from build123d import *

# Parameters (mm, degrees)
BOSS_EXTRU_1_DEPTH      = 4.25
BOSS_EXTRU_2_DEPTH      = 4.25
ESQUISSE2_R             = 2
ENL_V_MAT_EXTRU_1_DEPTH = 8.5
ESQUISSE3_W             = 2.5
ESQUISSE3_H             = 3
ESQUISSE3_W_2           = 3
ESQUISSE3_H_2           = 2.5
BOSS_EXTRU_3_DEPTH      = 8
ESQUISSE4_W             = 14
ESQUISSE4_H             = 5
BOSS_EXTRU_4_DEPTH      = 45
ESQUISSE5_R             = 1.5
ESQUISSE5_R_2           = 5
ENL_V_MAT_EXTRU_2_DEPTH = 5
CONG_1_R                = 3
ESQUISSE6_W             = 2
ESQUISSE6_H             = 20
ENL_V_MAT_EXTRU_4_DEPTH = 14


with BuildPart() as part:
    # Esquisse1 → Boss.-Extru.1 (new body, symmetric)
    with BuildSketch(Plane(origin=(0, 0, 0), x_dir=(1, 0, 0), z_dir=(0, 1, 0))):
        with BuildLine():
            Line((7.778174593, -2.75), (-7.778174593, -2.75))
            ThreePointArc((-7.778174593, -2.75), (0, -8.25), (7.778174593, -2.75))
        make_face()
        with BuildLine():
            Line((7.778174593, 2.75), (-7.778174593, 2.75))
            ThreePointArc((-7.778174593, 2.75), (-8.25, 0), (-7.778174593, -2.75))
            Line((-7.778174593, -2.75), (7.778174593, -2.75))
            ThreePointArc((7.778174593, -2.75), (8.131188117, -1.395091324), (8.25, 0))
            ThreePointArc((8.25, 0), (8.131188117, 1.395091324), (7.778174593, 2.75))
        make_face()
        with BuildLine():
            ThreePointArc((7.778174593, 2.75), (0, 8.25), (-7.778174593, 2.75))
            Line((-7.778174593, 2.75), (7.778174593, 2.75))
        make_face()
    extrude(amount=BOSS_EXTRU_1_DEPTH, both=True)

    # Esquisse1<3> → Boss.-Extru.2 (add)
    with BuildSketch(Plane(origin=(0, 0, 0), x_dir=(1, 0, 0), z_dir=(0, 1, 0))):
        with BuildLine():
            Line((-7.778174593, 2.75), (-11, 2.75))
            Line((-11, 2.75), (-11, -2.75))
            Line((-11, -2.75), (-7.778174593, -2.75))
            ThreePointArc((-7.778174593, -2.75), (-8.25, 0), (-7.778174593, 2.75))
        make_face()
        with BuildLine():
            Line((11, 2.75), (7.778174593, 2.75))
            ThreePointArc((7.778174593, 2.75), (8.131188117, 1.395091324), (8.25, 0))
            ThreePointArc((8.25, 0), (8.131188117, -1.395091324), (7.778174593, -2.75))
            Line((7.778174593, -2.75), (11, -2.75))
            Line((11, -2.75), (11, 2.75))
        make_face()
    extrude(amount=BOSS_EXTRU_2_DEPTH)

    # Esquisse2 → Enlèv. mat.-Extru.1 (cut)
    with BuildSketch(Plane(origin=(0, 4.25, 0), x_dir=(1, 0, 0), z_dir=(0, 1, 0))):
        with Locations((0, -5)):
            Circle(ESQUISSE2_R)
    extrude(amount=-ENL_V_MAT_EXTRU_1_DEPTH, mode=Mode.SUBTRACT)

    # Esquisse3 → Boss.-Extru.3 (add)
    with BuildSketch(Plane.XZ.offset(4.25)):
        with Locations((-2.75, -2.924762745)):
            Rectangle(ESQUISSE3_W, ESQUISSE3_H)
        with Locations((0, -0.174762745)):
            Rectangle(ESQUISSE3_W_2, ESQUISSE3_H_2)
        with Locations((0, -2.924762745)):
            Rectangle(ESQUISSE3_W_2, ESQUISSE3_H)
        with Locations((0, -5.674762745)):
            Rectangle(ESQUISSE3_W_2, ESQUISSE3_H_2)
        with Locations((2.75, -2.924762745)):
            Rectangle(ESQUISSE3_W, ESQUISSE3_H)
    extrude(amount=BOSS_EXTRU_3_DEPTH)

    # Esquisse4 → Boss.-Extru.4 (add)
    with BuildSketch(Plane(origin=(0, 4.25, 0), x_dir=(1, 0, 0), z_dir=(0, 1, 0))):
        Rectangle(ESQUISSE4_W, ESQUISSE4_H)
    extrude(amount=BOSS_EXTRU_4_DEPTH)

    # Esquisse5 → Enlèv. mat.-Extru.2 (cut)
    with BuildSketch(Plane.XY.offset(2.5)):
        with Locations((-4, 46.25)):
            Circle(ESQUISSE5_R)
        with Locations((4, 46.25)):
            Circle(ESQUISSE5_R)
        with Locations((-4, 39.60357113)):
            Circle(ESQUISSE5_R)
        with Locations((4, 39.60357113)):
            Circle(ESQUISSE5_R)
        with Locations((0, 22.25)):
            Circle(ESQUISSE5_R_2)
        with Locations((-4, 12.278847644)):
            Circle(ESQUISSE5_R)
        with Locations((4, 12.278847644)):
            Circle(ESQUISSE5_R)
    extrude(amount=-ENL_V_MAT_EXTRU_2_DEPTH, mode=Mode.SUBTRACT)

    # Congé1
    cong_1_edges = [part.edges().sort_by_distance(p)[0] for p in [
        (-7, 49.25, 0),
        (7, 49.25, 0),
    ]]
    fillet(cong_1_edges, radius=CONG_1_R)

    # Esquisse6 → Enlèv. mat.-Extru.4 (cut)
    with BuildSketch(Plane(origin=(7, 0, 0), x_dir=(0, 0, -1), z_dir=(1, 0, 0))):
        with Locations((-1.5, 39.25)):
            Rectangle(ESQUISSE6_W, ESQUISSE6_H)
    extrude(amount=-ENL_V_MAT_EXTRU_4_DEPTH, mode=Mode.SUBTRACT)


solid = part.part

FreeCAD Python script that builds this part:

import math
import FreeCAD as App
import Part
import Sketcher

V = App.Vector
Q = App.Units.Quantity


def edges_at(feature, points):
    """Names of the edges that pass closest to the given points."""
    edges = feature.Shape.Edges
    near = lambda p: min(range(len(edges)), key=lambda i: edges[i].distToShape(Part.Vertex(*p))[0])
    return sorted({f"Edge{near(p) + 1}" for p in points})


def add_polygon(sketch, points):
    """Adds a closed chain of lines whose ends are joined by coincident constraints."""
    first, n = sketch.GeometryCount, len(points)
    for a, b in zip(points, points[1:] + points[:1]):
        sketch.addGeometry(Part.LineSegment(App.Vector(*a, 0), App.Vector(*b, 0)), False)
    for i in range(n):
        sketch.addConstraint(Sketcher.Constraint("Coincident", first + i, 2, first + (i + 1) % n, 1))

doc = App.newDocument("Part")
body = doc.addObject("PartDesign::Body", "Body")

# Sketch on XZ plane
sketch1 = doc.addObject("Sketcher::SketchObject", "Sketch")
body.addObject(sketch1)
sketch1.AttachmentSupport = (doc.XZ_Plane, [""])
sketch1.MapMode = "FlatFace"
sketch1.addGeometry([
    Part.ArcOfCircle(Part.Circle(V(0, 0, 0), V(0, 0, 1), 8.2), math.radians(19), math.radians(161)),  # 0
    Part.ArcOfCircle(Part.Circle(V(0, 0, 0), V(0, 0, 1), 8.3), math.radians(0), math.radians(19.47)),  # 1
    Part.ArcOfCircle(Part.Circle(V(0, 0, 0), V(0, 0, 1), 8.3), math.radians(-19.47), math.radians(0)),  # 2
    Part.ArcOfCircle(Part.Circle(V(0, 0, 0), V(0, 0, 1), 8.2), math.radians(-161), math.radians(-19)),  # 3
    Part.ArcOfCircle(Part.Circle(V(0, 0, 0), V(0, 0, 1), 8.2), math.radians(161), math.radians(199)),  # 4
], False)
sketch1.addConstraint([
    Sketcher.Constraint("Tangent", 0, 1, 1, 2),
    Sketcher.Constraint("Tangent", 1, 1, 2, 2),
    Sketcher.Constraint("Tangent", 2, 1, 3, 2),
    Sketcher.Constraint("Tangent", 3, 1, 4, 2),
    Sketcher.Constraint("Tangent", 4, 1, 0, 2),
    Sketcher.Constraint("Coincident", 0, 3, -1, 1),
    Sketcher.Constraint("Coincident", 2, 3, -1, 1),
    Sketcher.Constraint("PointOnObject", 1, 1, -1),
    Sketcher.Constraint("Horizontal", 2, 1, 3, 1),
    Sketcher.Constraint("Horizontal", 0, 1, 4, 1),
    Sketcher.Constraint("Vertical", 0, 1, 2, 1),
    Sketcher.Constraint("Radius", 0, Q("8.25 mm")),
    Sketcher.Constraint("DistanceY", 2, 1, 0, 1, Q("5.5 mm")),
])
pad1 = doc.addObject("PartDesign::Pad", "Pad")
body.addObject(pad1)
pad1.Profile = sketch1
pad1.Length = 8.5
pad1.Midplane = True

# Sketch on XZ plane
sketch2 = doc.addObject("Sketcher::SketchObject", "Sketch001")
body.addObject(sketch2)
sketch2.AttachmentSupport = (doc.XZ_Plane, [""])
sketch2.MapMode = "FlatFace"
sketch2.addGeometry([
    Part.LineSegment(V(-7.8, -2.8, 0), V(-11, -2.8, 0)),  # 0
    Part.LineSegment(V(-11, -2.8, 0), V(-11, 2.8, 0)),  # 1
    Part.LineSegment(V(-11, 2.8, 0), V(-7.8, 2.8, 0)),  # 2
    Part.ArcOfCircle(Part.Circle(V(0, 0, 0), V(0, 0, 1), 8.2), math.radians(161), math.radians(199)),  # 3
    Part.LineSegment(V(11, -2.8, 0), V(7.8, -2.8, 0)),  # 4
    Part.ArcOfCircle(Part.Circle(V(0, 0, 0), V(0, 0, 1), 8.3), math.radians(-19.47), math.radians(0)),  # 5
    Part.ArcOfCircle(Part.Circle(V(0, 0, 0), V(0, 0, 1), 8.3), math.radians(0), math.radians(19.47)),  # 6
    Part.LineSegment(V(7.8, 2.8, 0), V(11, 2.8, 0)),  # 7
    Part.LineSegment(V(11, 2.8, 0), V(11, -2.8, 0)),  # 8
], False)
sketch2.addConstraint([
    Sketcher.Constraint("Coincident", 0, 2, 1, 1),
    Sketcher.Constraint("Coincident", 1, 2, 2, 1),
    Sketcher.Constraint("Coincident", 2, 2, 3, 1),
    Sketcher.Constraint("Coincident", 3, 2, 0, 1),
    Sketcher.Constraint("Coincident", 4, 2, 5, 1),
    Sketcher.Constraint("Tangent", 5, 2, 6, 1),
    Sketcher.Constraint("Coincident", 6, 2, 7, 1),
    Sketcher.Constraint("Coincident", 7, 2, 8, 1),
    Sketcher.Constraint("Coincident", 8, 2, 4, 1),
    Sketcher.Constraint("Horizontal", 0),
    Sketcher.Constraint("Vertical", 1),
    Sketcher.Constraint("Horizontal", 2),
    Sketcher.Constraint("Horizontal", 4),
    Sketcher.Constraint("Horizontal", 7),
    Sketcher.Constraint("Vertical", 8),
    Sketcher.Constraint("Coincident", 3, 3, -1, 1),
    Sketcher.Constraint("Coincident", 5, 3, -1, 1),
    Sketcher.Constraint("Equal", 3, 5),
    Sketcher.Constraint("Equal", 5, 6),
    Sketcher.Constraint("Symmetric", 0, 2, 7, 2, -1, 1),
    Sketcher.Constraint("PointOnObject", 5, 2, -1),
    Sketcher.Constraint("Horizontal", 3, 2, 4, 2),
    Sketcher.Constraint("Horizontal", 2, 2, 6, 2),
    Sketcher.Constraint("Radius", 3, Q("8.25 mm")),
    Sketcher.Constraint("DistanceY", 1, 1, 1, 2, Q("5.5 mm")),
    Sketcher.Constraint("DistanceX", 0, 2, -1, 1, Q("11 mm")),
])
pad2 = doc.addObject("PartDesign::Pad", "Pad001")
body.addObject(pad2)
pad2.Profile = sketch2
pad2.Length = 4.25
pad2.Reversed = True

# Sketch on XZ plane
sketch3 = doc.addObject("Sketcher::SketchObject", "Sketch002")
body.addObject(sketch3)
sketch3.AttachmentSupport = (doc.XZ_Plane, [""])
sketch3.MapMode = "FlatFace"
sketch3.AttachmentOffset = App.Placement(V(0, 0, -4.25), App.Rotation())
sketch3.addGeometry(Part.Circle(V(0, 5, 0), V(0, 0, 1), 2), False)
sketch3.addConstraint([
    Sketcher.Constraint("PointOnObject", 0, 3, -2),
    Sketcher.Constraint("Diameter", 0, Q("4 mm")),
    Sketcher.Constraint("DistanceY", -1, 1, 0, 3, Q("5 mm")),
])
pocket1 = doc.addObject("PartDesign::Pocket", "Pocket")
body.addObject(pocket1)
pocket1.Profile = sketch3
pocket1.Length = 8.5
pocket1.Reversed = True

# Sketch on XZ plane
sketch4 = doc.addObject("Sketcher::SketchObject", "Sketch003")
body.addObject(sketch4)
sketch4.AttachmentSupport = (doc.XZ_Plane, [""])
sketch4.MapMode = "FlatFace"
sketch4.AttachmentOffset = App.Placement(V(0, 0, 4.25), App.Rotation())
add_polygon(sketch4, [(-4, -1.4), (-4, -4.4), (-1.5, -4.4), (-1.5, -6.9), (1.5, -6.9), (1.5, -4.4), (4, -4.4), (4, -1.4), (1.5, -1.4), (1.5, 1.1), (-1.5, 1.1), (-1.5, -1.4)])  # lines 0-11
sketch4.addConstraint([
    Sketcher.Constraint("Vertical", 0),
    Sketcher.Constraint("Horizontal", 1),
    Sketcher.Constraint("Vertical", 2),
    Sketcher.Constraint("Horizontal", 3),
    Sketcher.Constraint("Vertical", 4),
    Sketcher.Constraint("Horizontal", 5),
    Sketcher.Constraint("Vertical", 6),
    Sketcher.Constraint("Horizontal", 7),
    Sketcher.Constraint("Vertical", 8),
    Sketcher.Constraint("Horizontal", 9),
    Sketcher.Constraint("Vertical", 10),
    Sketcher.Constraint("Horizontal", 11),
    Sketcher.Constraint("Symmetric", 1, 2, 4, 2, -2),
    Sketcher.Constraint("Symmetric", 7, 2, 10, 2, -2),
    Sketcher.Constraint("Vertical", 4, 2, 7, 2),
    Sketcher.Constraint("Equal", 1, 5),
    Sketcher.Constraint("Equal", 9, 0),
    Sketcher.Constraint("Equal", 11, 2),
    Sketcher.Constraint("Equal", 4, 8),
    Sketcher.Constraint("DistanceX", 3, 1, 3, 2, Q("3 mm")),
    Sketcher.Constraint("DistanceX", 1, 1, 1, 2, Q("2.5 mm")),
    Sketcher.Constraint("DistanceY", 0, 2, -1, 1, Q("4.424763 mm")),
])
pad3 = doc.addObject("PartDesign::Pad", "Pad002")
body.addObject(pad3)
pad3.Profile = sketch4
pad3.Length = 8

# Sketch on XZ plane
sketch5 = doc.addObject("Sketcher::SketchObject", "Sketch004")
body.addObject(sketch5)
sketch5.AttachmentSupport = (doc.XZ_Plane, [""])
sketch5.MapMode = "FlatFace"
sketch5.AttachmentOffset = App.Placement(V(0, 0, -4.25), App.Rotation())
add_polygon(sketch5, [(-7, -2), (-7, 2), (7, 2), (7, -2)])  # lines 0-3
sketch5.addConstraint([
    Sketcher.Constraint("Vertical", 0),
    Sketcher.Constraint("Horizontal", 1),
    Sketcher.Constraint("Vertical", 2),
    Sketcher.Constraint("Horizontal", 3),
    Sketcher.Constraint("Symmetric", 0, 2, 2, 2, -1, 1),
    Sketcher.Constraint("DistanceX", 1, 1, 1, 2, Q("14 mm")),
    Sketcher.Constraint("DistanceY", 0, 1, 0, 2, Q("5 mm")),
])
pad4 = doc.addObject("PartDesign::Pad", "Pad003")
body.addObject(pad4)
pad4.Profile = sketch5
pad4.Length = 45
pad4.Reversed = True

# Sketch on XY plane
sketch6 = doc.addObject("Sketcher::SketchObject", "Sketch005")
body.addObject(sketch6)
sketch6.AttachmentSupport = (doc.XY_Plane, [""])
sketch6.MapMode = "FlatFace"
sketch6.AttachmentOffset = App.Placement(V(0, 0, 2.5), App.Rotation())
sketch6.addGeometry([
    Part.Circle(V(-4, 46.2, 0), V(0, 0, 1), 1.5),  # 0
    Part.Circle(V(4, 46.2, 0), V(0, 0, 1), 1.5),  # 1
    Part.Circle(V(-4, 39.6, 0), V(0, 0, 1), 1.5),  # 2
    Part.Circle(V(4, 39.6, 0), V(0, 0, 1), 1.5),  # 3
    Part.Circle(V(0, 22.2, 0), V(0, 0, 1), 5),  # 4
    Part.Circle(V(-4, 12.3, 0), V(0, 0, 1), 1.5),  # 5
    Part.Circle(V(4, 12.3, 0), V(0, 0, 1), 1.5),  # 6
], False)
sketch6.addConstraint([
    Sketcher.Constraint("Equal", 0, 1),
    Sketcher.Constraint("Equal", 1, 2),
    Sketcher.Constraint("Equal", 2, 3),
    Sketcher.Constraint("Equal", 3, 5),
    Sketcher.Constraint("Equal", 5, 6),
    Sketcher.Constraint("Symmetric", 0, 3, 1, 3, -2),
    Sketcher.Constraint("Symmetric", 2, 3, 3, 3, -2),
    Sketcher.Constraint("Symmetric", 5, 3, 6, 3, -2),
    Sketcher.Constraint("PointOnObject", 4, 3, -2),
    Sketcher.Constraint("Vertical", 0, 3, 2, 3),
    Sketcher.Constraint("Vertical", 2, 3, 5, 3),
    Sketcher.Constraint("Diameter", 0, Q("3 mm")),
    Sketcher.Constraint("Diameter", 4, Q("10 mm")),
    Sketcher.Constraint("DistanceX", 0, 3, -1, 1, Q("4 mm")),
    Sketcher.Constraint("DistanceY", 4, 3, 0, 3, Q("24 mm")),
    Sketcher.Constraint("DistanceY", -1, 1, 0, 3, Q("46.25 mm")),
    Sketcher.Constraint("DistanceY", -1, 1, 2, 3, Q("39.603571 mm")),
    Sketcher.Constraint("DistanceY", -1, 1, 5, 3, Q("12.278848 mm")),
])
pocket2 = doc.addObject("PartDesign::Pocket", "Pocket001")
body.addObject(pocket2)
pocket2.Profile = sketch6
pocket2.Length = 5
doc.recompute()

fillet = doc.addObject("PartDesign::Fillet", "Fillet")
body.addObject(fillet)
fillet.Base = (pocket2, edges_at(pocket2, [(-7, 49.25, 0), (7, 49.25, 0)]))
fillet.Radius = 3

# Sketch on YZ plane
sketch7 = doc.addObject("Sketcher::SketchObject", "Sketch006")
body.addObject(sketch7)
sketch7.AttachmentSupport = (doc.YZ_Plane, [""])
sketch7.MapMode = "FlatFace"
sketch7.AttachmentOffset = App.Placement(V(0, 0, 7), App.Rotation())
add_polygon(sketch7, [(49.2, 2.5), (29.2, 2.5), (29.2, 0.5), (49.2, 0.5)])  # lines 0-3
sketch7.addConstraint([
    Sketcher.Constraint("Horizontal", 0),
    Sketcher.Constraint("Vertical", 1),
    Sketcher.Constraint("Horizontal", 2),
    Sketcher.Constraint("Vertical", 3),
    Sketcher.Constraint("DistanceX", 0, 2, 0, 1, Q("20 mm")),
    Sketcher.Constraint("DistanceY", 1, 2, 1, 1, Q("2 mm")),
    Sketcher.Constraint("DistanceY", -1, 1, 0, 2, Q("2.5 mm")),
    Sketcher.Constraint("DistanceX", -1, 1, 0, 2, Q("29.25 mm")),
])
pocket3 = doc.addObject("PartDesign::Pocket", "Pocket002")
body.addObject(pocket3)
pocket3.Profile = sketch7
pocket3.Length = 14

doc.recompute()
